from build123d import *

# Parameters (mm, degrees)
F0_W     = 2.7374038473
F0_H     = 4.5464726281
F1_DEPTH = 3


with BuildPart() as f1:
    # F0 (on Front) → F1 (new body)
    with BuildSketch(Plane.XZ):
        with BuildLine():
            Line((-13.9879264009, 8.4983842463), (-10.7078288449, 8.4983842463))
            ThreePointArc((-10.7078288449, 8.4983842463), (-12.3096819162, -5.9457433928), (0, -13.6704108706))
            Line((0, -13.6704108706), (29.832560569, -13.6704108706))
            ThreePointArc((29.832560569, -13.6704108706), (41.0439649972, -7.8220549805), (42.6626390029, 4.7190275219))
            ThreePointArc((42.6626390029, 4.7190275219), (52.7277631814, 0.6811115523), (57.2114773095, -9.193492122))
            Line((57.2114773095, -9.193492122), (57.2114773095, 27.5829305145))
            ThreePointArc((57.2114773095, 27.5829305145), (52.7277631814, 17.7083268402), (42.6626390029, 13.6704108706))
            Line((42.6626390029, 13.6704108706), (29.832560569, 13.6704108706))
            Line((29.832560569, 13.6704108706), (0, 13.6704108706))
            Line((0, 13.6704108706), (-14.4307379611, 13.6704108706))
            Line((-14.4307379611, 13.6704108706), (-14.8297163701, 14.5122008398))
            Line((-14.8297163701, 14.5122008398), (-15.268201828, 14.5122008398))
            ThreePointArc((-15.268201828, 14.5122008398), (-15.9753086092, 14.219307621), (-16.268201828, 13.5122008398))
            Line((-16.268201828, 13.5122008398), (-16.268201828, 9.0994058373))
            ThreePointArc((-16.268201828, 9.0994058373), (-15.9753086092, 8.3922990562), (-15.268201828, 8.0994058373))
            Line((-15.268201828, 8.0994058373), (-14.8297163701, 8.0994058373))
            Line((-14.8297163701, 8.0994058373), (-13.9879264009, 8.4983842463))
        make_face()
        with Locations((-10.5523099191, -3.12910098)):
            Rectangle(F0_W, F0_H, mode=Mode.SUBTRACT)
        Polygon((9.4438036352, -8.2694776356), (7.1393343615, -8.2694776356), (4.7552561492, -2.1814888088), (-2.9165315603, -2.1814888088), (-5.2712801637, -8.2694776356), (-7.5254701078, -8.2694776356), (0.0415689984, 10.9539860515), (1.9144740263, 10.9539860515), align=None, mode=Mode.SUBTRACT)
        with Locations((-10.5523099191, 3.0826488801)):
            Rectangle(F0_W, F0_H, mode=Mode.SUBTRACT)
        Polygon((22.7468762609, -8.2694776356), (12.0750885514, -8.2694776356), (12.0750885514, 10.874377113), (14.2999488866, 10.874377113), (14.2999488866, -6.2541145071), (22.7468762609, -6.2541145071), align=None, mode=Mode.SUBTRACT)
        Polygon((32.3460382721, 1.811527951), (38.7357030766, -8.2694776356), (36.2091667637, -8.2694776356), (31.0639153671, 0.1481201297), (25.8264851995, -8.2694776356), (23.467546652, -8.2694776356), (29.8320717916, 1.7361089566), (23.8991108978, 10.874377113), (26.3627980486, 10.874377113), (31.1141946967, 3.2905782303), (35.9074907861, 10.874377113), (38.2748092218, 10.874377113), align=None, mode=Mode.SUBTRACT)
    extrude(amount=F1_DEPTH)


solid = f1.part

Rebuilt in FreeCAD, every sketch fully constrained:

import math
import FreeCAD as App
import Part
import Sketcher


def add_polygon(sketch, points):
    """Adds a closed chain of lines whose ends are joined by coincident constraints."""
    first, n = sketch.GeometryCount, len(points)
    for a, b in zip(points, points[1:] + points[:1]):
        sketch.addGeometry(Part.LineSegment(App.Vector(*a, 0), App.Vector(*b, 0)), False)
    for i in range(n):
        sketch.addConstraint(Sketcher.Constraint("Coincident", first + i, 2, first + (i + 1) % n, 1))

doc = App.newDocument("Part")
body = doc.addObject("PartDesign::Body", "Body")

# Sketch on XZ plane
sketch1 = body.newObject("Sketcher::SketchObject", "Sketch")
sketch1.AttachmentSupport = (doc.getObject("XZ_Plane"), [""])
sketch1.MapMode = "FlatFace"
sketch1.addGeometry(Part.LineSegment(App.Vector(-13.99, 8.5, 0), App.Vector(-10.71, 8.5, 0)), False)  # 0
sketch1.addGeometry(Part.ArcOfCircle(Part.Circle(App.Vector(0, 0, 0), App.Vector(0, 0, 1), 13.67), math.radians(142), math.radians(270)), False)  # 1
sketch1.addGeometry(Part.LineSegment(App.Vector(0, -13.67, 0), App.Vector(29.83, -13.67, 0)), False)  # 2
sketch1.addGeometry(Part.ArcOfCircle(Part.Circle(App.Vector(29.83, 0, 0), App.Vector(0, 0, 1), 13.67), math.radians(-90), math.radians(20)), False)  # 3
sketch1.addGeometry(Part.ArcOfCircle(Part.Circle(App.Vector(42.66, -9.84, 0), App.Vector(0, 0, 1), 14.56), math.radians(3), math.radians(90)), False)  # 4
sketch1.addGeometry(Part.LineSegment(App.Vector(57.21, -9.19, 0), App.Vector(57.21, 27.58, 0)), False)  # 5
sketch1.addGeometry(Part.ArcOfCircle(Part.Circle(App.Vector(42.66, 28.23, 0), App.Vector(0, 0, 1), 14.56), math.radians(-90), math.radians(-3)), False)  # 6
sketch1.addGeometry(Part.LineSegment(App.Vector(42.66, 13.67, 0), App.Vector(-14.43, 13.67, 0)), False)  # 7
sketch1.addGeometry(Part.LineSegment(App.Vector(-14.43, 13.67, 0), App.Vector(-14.83, 14.51, 0)), False)  # 8
sketch1.addGeometry(Part.LineSegment(App.Vector(-14.83, 14.51, 0), App.Vector(-15.27, 14.51, 0)), False)  # 9
sketch1.addGeometry(Part.ArcOfCircle(Part.Circle(App.Vector(-15.27, 13.51, 0), App.Vector(0, 0, 1), 1), math.radians(90), math.radians(180)), False)  # 10
sketch1.addGeometry(Part.LineSegment(App.Vector(-16.27, 13.51, 0), App.Vector(-16.27, 9.1, 0)), False)  # 11
sketch1.addGeometry(Part.ArcOfCircle(Part.Circle(App.Vector(-15.27, 9.1, 0), App.Vector(0, 0, 1), 1), math.radians(180), math.radians(270)), False)  # 12
sketch1.addGeometry(Part.LineSegment(App.Vector(-15.27, 8.1, 0), App.Vector(-14.83, 8.1, 0)), False)  # 13
sketch1.addGeometry(Part.LineSegment(App.Vector(-14.83, 8.1, 0), App.Vector(-13.99, 8.5, 0)), False)  # 14
add_polygon(sketch1, [(-9.18, -5.4), (-11.92, -5.4), (-11.92, -0.86), (-9.18, -0.86)])  # lines 15-18
add_polygon(sketch1, [(22.75, -6.25), (22.75, -8.27), (12.08, -8.27), (12.08, 10.87), (14.3, 10.87), (14.3, -6.25)])  # lines 19-24
add_polygon(sketch1, [(38.27, 10.87), (32.35, 1.81), (38.74, -8.27), (36.21, -8.27), (31.06, 0.15), (25.83, -8.27), (23.47, -8.27), (29.83, 1.74), (23.9, 10.87), (26.36, 10.87), (31.11, 3.29), (35.91, 10.87)])  # lines 25-36
add_polygon(sketch1, [(-9.18, 0.81), (-11.92, 0.81), (-11.92, 5.36), (-9.18, 5.36)])  # lines 37-40
add_polygon(sketch1, [(1.91, 10.95), (9.44, -8.27), (7.14, -8.27), (4.76, -2.18), (-2.92, -2.18), (-5.27, -8.27), (-7.53, -8.27), (0.04, 10.95)])  # lines 41-48
sketch1.addConstraint([
    Sketcher.Constraint("Coincident", 0, 2, 1, 1),
    Sketcher.Constraint("Tangent", 1, 2, 2, 1),
    Sketcher.Constraint("Tangent", 2, 2, 3, 1),
    Sketcher.Constraint("Coincident", 3, 2, 4, 2),
    Sketcher.Constraint("Coincident", 4, 1, 5, 1),
    Sketcher.Constraint("Coincident", 5, 2, 6, 2),
    Sketcher.Constraint("Tangent", 6, 1, 7, 1),
    Sketcher.Constraint("Coincident", 7, 2, 8, 1),
    Sketcher.Constraint("Coincident", 8, 2, 9, 1),
    Sketcher.Constraint("Tangent", 9, 2, 10, 1),
    Sketcher.Constraint("Tangent", 10, 2, 11, 1),
    Sketcher.Constraint("Tangent", 11, 2, 12, 1),
    Sketcher.Constraint("Tangent", 12, 2, 13, 1),
    Sketcher.Constraint("Coincident", 13, 2, 14, 1),
    Sketcher.Constraint("Coincident", 14, 2, 0, 1),
    Sketcher.Constraint("Horizontal", 0),
    Sketcher.Constraint("Horizontal", 2),
    Sketcher.Constraint("Vertical", 5),
    Sketcher.Constraint("Horizontal", 7),
    Sketcher.Constraint("Horizontal", 9),
    Sketcher.Constraint("Vertical", 11),
    Sketcher.Constraint("Horizontal", 13),
    Sketcher.Constraint("Horizontal", 15),
    Sketcher.Constraint("Vertical", 16),
    Sketcher.Constraint("Horizontal", 17),
    Sketcher.Constraint("Vertical", 18),
    Sketcher.Constraint("Vertical", 19),
    Sketcher.Constraint("Horizontal", 20),
    Sketcher.Constraint("Vertical", 21),
    Sketcher.Constraint("Horizontal", 22),
    Sketcher.Constraint("Vertical", 23),
    Sketcher.Constraint("Horizontal", 24),
    Sketcher.Constraint("Horizontal", 27),
    Sketcher.Constraint("Horizontal", 30),
    Sketcher.Constraint("Horizontal", 33),
    Sketcher.Constraint("Horizontal", 36),
    Sketcher.Constraint("Horizontal", 37),
    Sketcher.Constraint("Vertical", 38),
    Sketcher.Constraint("Horizontal", 39),
    Sketcher.Constraint("Vertical", 40),
    Sketcher.Constraint("Horizontal", 42),
    Sketcher.Constraint("Horizontal", 44),
    Sketcher.Constraint("Horizontal", 46),
    Sketcher.Constraint("Horizontal", 48),
    Sketcher.Constraint("Coincident", 1, 3, -1, 1),
    Sketcher.Constraint("Equal", 1, 3),
    Sketcher.Constraint("Equal", 4, 6),
    Sketcher.Constraint("Equal", 10, 12),
    Sketcher.Constraint("Perpendicular", 8, 14),
    Sketcher.Constraint("Horizontal", 20, 2, 26, 2),
    Sketcher.Constraint("Horizontal", 27, 2, 29, 2),
    Sketcher.Constraint("Horizontal", 22, 2, 32, 2),
    Sketcher.Constraint("Horizontal", 33, 2, 35, 2),
    Sketcher.Constraint("Horizontal", 30, 2, 41, 2),
    Sketcher.Constraint("Horizontal", 42, 2, 45, 2),
    Sketcher.Constraint("Vertical", 4, 3, 6, 3),
    Sketcher.Constraint("Vertical", 6, 3, 3, 2),
    Sketcher.Constraint("Vertical", 8, 2, 13, 2),
    Sketcher.Constraint("Vertical", 16, 2, 37, 2),
    Sketcher.Constraint("Vertical", 18, 2, 39, 2),
    Sketcher.Constraint("Equal", 18, 38),
    Sketcher.Constraint("Equal", 8, 14),
    Sketcher.Constraint("Radius", 10, 1.0),
    Sketcher.Constraint("Radius", 1, 13.670411),
    Sketcher.Constraint("Radius", 4, 14.56339),
    Sketcher.Constraint("DistanceX", 2, 1, 2, 2, 29.832561),
    Sketcher.Constraint("DistanceX", 22, 1, 22, 2, 2.22486),
    Sketcher.Constraint("DistanceX", 30, 2, 30, 1, 2.358939),
    Sketcher.Constraint("DistanceX", 36, 1, 36, 2, 2.367318),
    Sketcher.Constraint("DistanceX", 42, 2, 42, 1, 2.304469),
    Sketcher.Constraint("DistanceX", 46, 2, 46, 1, 2.25419),
    Sketcher.Constraint("DistanceY", 23, 2, 23, 1, 17.128492),
    Sketcher.Constraint("DistanceY", -1, 1, 6, 3, 28.233801),
    Sketcher.Constraint("DistanceX", 10, 3, -1, 1, 15.268202),
    Sketcher.Constraint("DistanceY", -1, 1, 10, 3, 13.512201),
    Sketcher.Constraint("DistanceX", -1, 1, 33, 2, 26.362798),
    Sketcher.Constraint("DistanceX", 25, 2, 3, 2, 10.316601),
    Sketcher.Constraint("DistanceY", 25, 2, 3, 2, 2.9075),
    Sketcher.Constraint("DistanceY", 34, 2, 33, 2, 7.583799),
    Sketcher.Constraint("DistanceY", 38, 2, 0, 2, 3.142499),
    Sketcher.Constraint("DistanceY", 44, 2, 40, 2, 2.990901),
    Sketcher.Constraint("DistanceY", 39, 2, 47, 2, 5.598101),
    Sketcher.Constraint("Distance", 26, 11.93543),
    Sketcher.Constraint("Distance", 29, 9.913961),
    Sketcher.Constraint("Distance", 32, 10.895319),
    Sketcher.Constraint("Distance", 34, 8.949289),
    Sketcher.Constraint("Distance", 47, 20.659178),
    Sketcher.Constraint("DistanceX", 0, 1, 0, 2, 3.280098),
    Sketcher.Constraint("DistanceX", 7, 2, 7, 1, 57.093377),
    Sketcher.Constraint("DistanceX", 9, 2, 9, 1, 0.438485),
    Sketcher.Constraint("DistanceX", 15, 2, 15, 1, 2.737404),
    Sketcher.Constraint("DistanceX", 20, 2, 20, 1, 10.671788),
    Sketcher.Constraint("DistanceX", 27, 2, 27, 1, 2.526536),
    Sketcher.Constraint("DistanceX", 33, 1, 33, 2, 2.463687),
    Sketcher.Constraint("DistanceX", 44, 2, 44, 1, 7.671788),
    Sketcher.Constraint("DistanceX", 48, 1, 48, 2, 1.872905),
    Sketcher.Constraint("DistanceY", 5, 1, 5, 2, 36.776423),
    Sketcher.Constraint("DistanceY", 11, 2, 11, 1, 4.412795),
    Sketcher.Constraint("DistanceY", 16, 1, 16, 2, 4.546473),
    Sketcher.Constraint("DistanceY", 19, 2, 19, 1, 2.015363),
    Sketcher.Constraint("DistanceX", 15, 2, -1, 1, 11.921012),
    Sketcher.Constraint("DistanceX", -1, 1, 20, 2, 12.075089),
    Sketcher.Constraint("DistanceY", -1, 1, 28, 2, 0.14812),
    Sketcher.Constraint("DistanceX", -1, 1, 31, 2, 29.832072),
    Sketcher.Constraint("DistanceY", -1, 1, 31, 2, 1.736109),
    Sketcher.Constraint("DistanceX", -1, 1, 35, 2, 35.907491),
    Sketcher.Constraint("DistanceX", 44, 2, -1, 1, 2.916532),
    Sketcher.Constraint("DistanceX", 45, 2, -1, 1, 5.27128),
    Sketcher.Constraint("DistanceY", 15, 2, 0, 2, 13.900722),
    Sketcher.Constraint("DistanceX", 28, 2, 27, 2, 5.145251),
    Sketcher.Constraint("DistanceX", 43, 2, 42, 2, 2.384078),
])
pad1 = body.newObject("PartDesign::Pad", "Pad")
pad1.Profile = sketch1
pad1.Length = 3

doc.recompute()
